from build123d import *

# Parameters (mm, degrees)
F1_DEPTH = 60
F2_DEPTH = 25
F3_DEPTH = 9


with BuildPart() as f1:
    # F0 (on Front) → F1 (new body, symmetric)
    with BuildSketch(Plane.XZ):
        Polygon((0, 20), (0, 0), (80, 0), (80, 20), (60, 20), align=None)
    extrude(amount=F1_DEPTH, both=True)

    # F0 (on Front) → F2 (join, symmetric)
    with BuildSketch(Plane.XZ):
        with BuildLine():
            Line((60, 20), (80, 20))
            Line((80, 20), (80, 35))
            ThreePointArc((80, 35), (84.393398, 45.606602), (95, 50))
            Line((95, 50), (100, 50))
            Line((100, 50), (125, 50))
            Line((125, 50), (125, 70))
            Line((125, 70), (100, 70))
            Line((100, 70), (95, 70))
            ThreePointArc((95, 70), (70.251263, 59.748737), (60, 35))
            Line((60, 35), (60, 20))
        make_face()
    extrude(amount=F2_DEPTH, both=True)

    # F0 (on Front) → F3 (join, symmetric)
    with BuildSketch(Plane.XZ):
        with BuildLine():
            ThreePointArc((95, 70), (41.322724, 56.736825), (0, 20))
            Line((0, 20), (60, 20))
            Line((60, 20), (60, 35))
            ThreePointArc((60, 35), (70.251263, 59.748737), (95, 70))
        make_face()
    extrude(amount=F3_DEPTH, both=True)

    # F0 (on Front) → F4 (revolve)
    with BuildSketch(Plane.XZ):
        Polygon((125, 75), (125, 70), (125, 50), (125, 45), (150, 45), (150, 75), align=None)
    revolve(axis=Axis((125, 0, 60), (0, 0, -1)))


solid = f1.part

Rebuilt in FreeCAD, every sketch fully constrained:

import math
import FreeCAD as App
import Part
import Sketcher
Q = App.Units.Quantity


def add_polygon(sketch, points):
    """Adds a closed chain of lines whose ends are joined by coincident constraints."""
    first, n = sketch.GeometryCount, len(points)
    for a, b in zip(points, points[1:] + points[:1]):
        sketch.addGeometry(Part.LineSegment(App.Vector(*a, 0), App.Vector(*b, 0)), False)
    for i in range(n):
        sketch.addConstraint(Sketcher.Constraint("Coincident", first + i, 2, first + (i + 1) % n, 1))

doc = App.newDocument("Part")
body = doc.addObject("PartDesign::Body", "Body")

# Sketch on XZ plane
sketch1 = body.newObject("Sketcher::SketchObject", "Sketch")
sketch1.AttachmentSupport = (doc.getObject("XZ_Plane"), [""])
sketch1.MapMode = "FlatFace"
add_polygon(sketch1, [(0, 20), (0, 0), (80, 0), (80, 20)])  # lines 0-3
sketch1.addConstraint(Sketcher.Constraint("Vertical", 0))
sketch1.addConstraint(Sketcher.Constraint("Horizontal", 1))
sketch1.addConstraint(Sketcher.Constraint("Vertical", 2))
sketch1.addConstraint(Sketcher.Constraint("Horizontal", 3))
sketch1.addConstraint(Sketcher.Constraint("Coincident", 0, 2, -1, 1))
sketch1.addConstraint(Sketcher.Constraint("DistanceX", 1, 1, 1, 2, Q("80 mm")))
sketch1.addConstraint(Sketcher.Constraint("DistanceY", 0, 2, 0, 1, Q("20 mm")))
pad1 = body.newObject("PartDesign::Pad", "Pad")
pad1.Profile = sketch1
pad1.Length = 120
pad1.Midplane = True

# Sketch on XZ plane
sketch2 = body.newObject("Sketcher::SketchObject", "Sketch001")
sketch2.AttachmentSupport = (doc.getObject("XZ_Plane"), [""])
sketch2.MapMode = "FlatFace"
sketch2.addGeometry(Part.LineSegment(App.Vector(60, 20, 0), App.Vector(80, 20, 0)), False)
sketch2.addGeometry(Part.LineSegment(App.Vector(80, 20, 0), App.Vector(80, 35, 0)), False)
sketch2.addGeometry(Part.ArcOfCircle(Part.Circle(App.Vector(94.999999, 35.000001, 0), App.Vector(0, 0, 1), 14.999999), math.radians(89.999996), math.radians(180.000004)), False)
sketch2.addGeometry(Part.LineSegment(App.Vector(95, 50, 0), App.Vector(125, 50, 0)), False)
sketch2.addGeometry(Part.LineSegment(App.Vector(125, 50, 0), App.Vector(125, 70, 0)), False)
sketch2.addGeometry(Part.LineSegment(App.Vector(125, 70, 0), App.Vector(95, 70, 0)), False)
sketch2.addGeometry(Part.ArcOfCircle(Part.Circle(App.Vector(95.000001, 34.999999, 0), App.Vector(0, 0, 1), 35.000001), math.radians(90.000002), math.radians(179.999998)), False)
sketch2.addGeometry(Part.LineSegment(App.Vector(60, 35, 0), App.Vector(60, 20, 0)), False)
sketch2.addConstraint(Sketcher.Constraint("Coincident", 0, 2, 1, 1))
sketch2.addConstraint(Sketcher.Constraint("Tangent", 1, 2, 2, 2))
sketch2.addConstraint(Sketcher.Constraint("Tangent", 2, 1, 3, 1))
sketch2.addConstraint(Sketcher.Constraint("Coincident", 3, 2, 4, 1))
sketch2.addConstraint(Sketcher.Constraint("Coincident", 4, 2, 5, 1))
sketch2.addConstraint(Sketcher.Constraint("Tangent", 5, 2, 6, 1))
sketch2.addConstraint(Sketcher.Constraint("Tangent", 6, 2, 7, 1))
sketch2.addConstraint(Sketcher.Constraint("Coincident", 7, 2, 0, 1))
sketch2.addConstraint(Sketcher.Constraint("Horizontal", 0))
sketch2.addConstraint(Sketcher.Constraint("Vertical", 1))
sketch2.addConstraint(Sketcher.Constraint("Horizontal", 3))
sketch2.addConstraint(Sketcher.Constraint("Vertical", 4))
sketch2.addConstraint(Sketcher.Constraint("Horizontal", 5))
sketch2.addConstraint(Sketcher.Constraint("Vertical", 7))
sketch2.addConstraint(Sketcher.Constraint("Coincident", 6, 3, 2, 3))
sketch2.addConstraint(Sketcher.Constraint("Radius", 2, Q("14.999999 mm")))
sketch2.addConstraint(Sketcher.Constraint("Radius", 6, Q("35.000001 mm")))
sketch2.addConstraint(Sketcher.Constraint("DistanceX", 3, 1, 3, 2, Q("30 mm")))
sketch2.addConstraint(Sketcher.Constraint("DistanceY", 1, 1, 1, 2, Q("15 mm")))
sketch2.addConstraint(Sketcher.Constraint("DistanceX", -1, 1, 2, 3, Q("94.999999 mm")))
sketch2.addConstraint(Sketcher.Constraint("DistanceY", -1, 1, 2, 3, Q("35.000001 mm")))
pad2 = body.newObject("PartDesign::Pad", "Pad001")
pad2.Profile = sketch2
pad2.Length = 50
pad2.Midplane = True

# Sketch on XZ plane
sketch3 = body.newObject("Sketcher::SketchObject", "Sketch002")
sketch3.AttachmentSupport = (doc.getObject("XZ_Plane"), [""])
sketch3.MapMode = "FlatFace"
sketch3.addGeometry(Part.ArcOfCircle(Part.Circle(App.Vector(95.000001, -45.250002, 0), App.Vector(0, 0, 1), 115.250002), math.radians(90.000001), math.radians(145.517081)), False)
sketch3.addGeometry(Part.LineSegment(App.Vector(0, 20, 0), App.Vector(60, 20, 0)), False)
sketch3.addGeometry(Part.LineSegment(App.Vector(60, 20, 0), App.Vector(60, 35, 0)), False)
sketch3.addGeometry(Part.ArcOfCircle(Part.Circle(App.Vector(95.000001, 34.999999, 0), App.Vector(0, 0, 1), 35.000001), math.radians(90.000002), math.radians(179.999998)), False)
sketch3.addConstraint(Sketcher.Constraint("Coincident", 0, 2, 1, 1))
sketch3.addConstraint(Sketcher.Constraint("Coincident", 1, 2, 2, 1))
sketch3.addConstraint(Sketcher.Constraint("Tangent", 2, 2, 3, 2))
sketch3.addConstraint(Sketcher.Constraint("Tangent", 3, 1, 0, 1))
sketch3.addConstraint(Sketcher.Constraint("Horizontal", 1))
sketch3.addConstraint(Sketcher.Constraint("Vertical", 2))
sketch3.addConstraint(Sketcher.Constraint("PointOnObject", 0, 2, -2))
sketch3.addConstraint(Sketcher.Constraint("Vertical", 0, 3, 3, 3))
sketch3.addConstraint(Sketcher.Constraint("Radius", 3, Q("35.000001 mm")))
sketch3.addConstraint(Sketcher.Constraint("DistanceX", 1, 1, 1, 2, Q("60 mm")))
sketch3.addConstraint(Sketcher.Constraint("DistanceY", 2, 1, 2, 2, Q("15 mm")))
sketch3.addConstraint(Sketcher.Constraint("DistanceY", -1, 1, 3, 3, Q("34.999999 mm")))
pad3 = body.newObject("PartDesign::Pad", "Pad002")
pad3.Profile = sketch3
pad3.Length = 18
pad3.Midplane = True

# Sketch on XZ plane
sketch4 = body.newObject("Sketcher::SketchObject", "Sketch003")
sketch4.AttachmentSupport = (doc.getObject("XZ_Plane"), [""])
sketch4.MapMode = "FlatFace"
add_polygon(sketch4, [(125, 75), (125, 45), (150, 45), (150, 75)])  # lines 0-3
sketch4.addGeometry(Part.LineSegment(App.Vector(125, 75, 0), App.Vector(125, 45, 0)), True)  # axis
sketch4.addConstraint(Sketcher.Constraint("Vertical", 0))
sketch4.addConstraint(Sketcher.Constraint("Horizontal", 1))
sketch4.addConstraint(Sketcher.Constraint("Vertical", 2))
sketch4.addConstraint(Sketcher.Constraint("Horizontal", 3))
sketch4.addConstraint(Sketcher.Constraint("Vertical", 4))
sketch4.addConstraint(Sketcher.Constraint("Coincident", 4, 1, 3, 2))
sketch4.addConstraint(Sketcher.Constraint("Horizontal", 1, 2, 4, 2))
sketch4.addConstraint(Sketcher.Constraint("DistanceX", 1, 1, 1, 2, Q("25 mm")))
sketch4.addConstraint(Sketcher.Constraint("DistanceY", 0, 2, 0, 1, Q("30 mm")))
sketch4.addConstraint(Sketcher.Constraint("DistanceX", -1, 1, 0, 2, Q("125 mm")))
sketch4.addConstraint(Sketcher.Constraint("DistanceY", -1, 1, 0, 2, Q("45 mm")))
revolution = body.newObject("PartDesign::Revolution", "Revolution")
revolution.Profile = sketch4
revolution.ReferenceAxis = (sketch4, ["Axis0"])
revolution.Angle = 360

doc.recompute()
